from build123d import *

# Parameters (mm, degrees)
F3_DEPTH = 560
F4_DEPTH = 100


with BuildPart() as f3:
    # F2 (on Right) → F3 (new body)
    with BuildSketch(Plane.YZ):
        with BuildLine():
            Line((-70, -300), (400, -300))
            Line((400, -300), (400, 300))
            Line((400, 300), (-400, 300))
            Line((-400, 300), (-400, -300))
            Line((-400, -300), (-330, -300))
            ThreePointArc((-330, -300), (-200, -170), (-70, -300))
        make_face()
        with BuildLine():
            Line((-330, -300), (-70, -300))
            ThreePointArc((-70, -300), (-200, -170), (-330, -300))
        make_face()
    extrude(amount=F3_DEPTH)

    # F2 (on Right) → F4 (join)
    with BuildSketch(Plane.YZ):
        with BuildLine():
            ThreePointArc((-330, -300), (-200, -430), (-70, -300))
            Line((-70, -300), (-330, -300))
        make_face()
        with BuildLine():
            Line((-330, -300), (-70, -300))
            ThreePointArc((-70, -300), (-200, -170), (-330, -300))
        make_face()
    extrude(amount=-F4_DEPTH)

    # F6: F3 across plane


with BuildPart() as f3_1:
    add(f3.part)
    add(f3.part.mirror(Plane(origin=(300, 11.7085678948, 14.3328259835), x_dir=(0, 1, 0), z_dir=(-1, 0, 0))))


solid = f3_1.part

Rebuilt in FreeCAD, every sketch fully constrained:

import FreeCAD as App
import Part
import Sketcher

V = App.Vector

doc = App.newDocument("Part")
body = doc.addObject("PartDesign::Body", "Body")

# Sketch on YZ plane
sketch1 = body.newObject("Sketcher::SketchObject", "Sketch")
sketch1.AttachmentSupport = (doc.getObject("YZ_Plane"), [""])
sketch1.MapMode = "FlatFace"
sketch1.addGeometry(Part.LineSegment(V(400, -300, 0), V(400, 300, 0)), False)
sketch1.addGeometry(Part.LineSegment(V(400, 300, 0), V(-400, 300, 0)), False)
sketch1.addGeometry(Part.LineSegment(V(-400, 300, 0), V(-400, -300, 0)), False)
sketch1.addGeometry(Part.LineSegment(V(-400, -300, 0), V(400, -300, 0)), False)
sketch1.addConstraint(Sketcher.Constraint("Coincident", 0, 2, 1, 1))
sketch1.addConstraint(Sketcher.Constraint("Coincident", 1, 2, 2, 1))
sketch1.addConstraint(Sketcher.Constraint("Coincident", 2, 2, 3, 1))
sketch1.addConstraint(Sketcher.Constraint("Coincident", 3, 2, 0, 1))
sketch1.addConstraint(Sketcher.Constraint("Vertical", 0))
sketch1.addConstraint(Sketcher.Constraint("Horizontal", 1))
sketch1.addConstraint(Sketcher.Constraint("Vertical", 2))
sketch1.addConstraint(Sketcher.Constraint("Horizontal", 3))
sketch1.addConstraint(Sketcher.Constraint("Symmetric", 0, 2, 2, 2, -1, 1))
sketch1.addConstraint(Sketcher.Constraint("DistanceX", 1, 2, 1, 1, 800.0))
sketch1.addConstraint(Sketcher.Constraint("DistanceY", 0, 1, 0, 2, 600.0))
pad1 = body.newObject("PartDesign::Pad", "Pad")
pad1.Profile = sketch1
pad1.Length = 560

# Sketch on YZ plane
sketch2 = body.newObject("Sketcher::SketchObject", "Sketch001")
sketch2.AttachmentSupport = (doc.getObject("YZ_Plane"), [""])
sketch2.MapMode = "FlatFace"
sketch2.addGeometry(Part.Circle(V(-200, -300, 0), V(0, 0, 1), 130), False)
sketch2.addConstraint(Sketcher.Constraint("Diameter", 0, 260.0))
sketch2.addConstraint(Sketcher.Constraint("DistanceX", 0, 3, -1, 1, 200.0))
sketch2.addConstraint(Sketcher.Constraint("DistanceY", 0, 3, -1, 1, 300.0))
pad2 = body.newObject("PartDesign::Pad", "Pad001")
pad2.Profile = sketch2
pad2.Length = 100
pad2.Reversed = True
body2 = doc.addObject("PartDesign::Body", "Body001")
doc.recompute()

body2.BaseFeature = body
doc.recompute()

mirroring = doc.addObject("Part::Mirroring", "Mirroring")
mirroring.Source = body
mirroring.Base = V(300, 11.708568, 14.332826)
mirroring.Normal = V(-1, 0, 0)
body3 = doc.addObject("PartDesign::Body", "Body002")
body3.BaseFeature = mirroring
boolean = body2.newObject("PartDesign::Boolean", "Boolean")
boolean.Type = "Fuse"
boolean.addObjects([body3])
doc.recompute()
mirroring.Visibility = False

doc.recompute()
